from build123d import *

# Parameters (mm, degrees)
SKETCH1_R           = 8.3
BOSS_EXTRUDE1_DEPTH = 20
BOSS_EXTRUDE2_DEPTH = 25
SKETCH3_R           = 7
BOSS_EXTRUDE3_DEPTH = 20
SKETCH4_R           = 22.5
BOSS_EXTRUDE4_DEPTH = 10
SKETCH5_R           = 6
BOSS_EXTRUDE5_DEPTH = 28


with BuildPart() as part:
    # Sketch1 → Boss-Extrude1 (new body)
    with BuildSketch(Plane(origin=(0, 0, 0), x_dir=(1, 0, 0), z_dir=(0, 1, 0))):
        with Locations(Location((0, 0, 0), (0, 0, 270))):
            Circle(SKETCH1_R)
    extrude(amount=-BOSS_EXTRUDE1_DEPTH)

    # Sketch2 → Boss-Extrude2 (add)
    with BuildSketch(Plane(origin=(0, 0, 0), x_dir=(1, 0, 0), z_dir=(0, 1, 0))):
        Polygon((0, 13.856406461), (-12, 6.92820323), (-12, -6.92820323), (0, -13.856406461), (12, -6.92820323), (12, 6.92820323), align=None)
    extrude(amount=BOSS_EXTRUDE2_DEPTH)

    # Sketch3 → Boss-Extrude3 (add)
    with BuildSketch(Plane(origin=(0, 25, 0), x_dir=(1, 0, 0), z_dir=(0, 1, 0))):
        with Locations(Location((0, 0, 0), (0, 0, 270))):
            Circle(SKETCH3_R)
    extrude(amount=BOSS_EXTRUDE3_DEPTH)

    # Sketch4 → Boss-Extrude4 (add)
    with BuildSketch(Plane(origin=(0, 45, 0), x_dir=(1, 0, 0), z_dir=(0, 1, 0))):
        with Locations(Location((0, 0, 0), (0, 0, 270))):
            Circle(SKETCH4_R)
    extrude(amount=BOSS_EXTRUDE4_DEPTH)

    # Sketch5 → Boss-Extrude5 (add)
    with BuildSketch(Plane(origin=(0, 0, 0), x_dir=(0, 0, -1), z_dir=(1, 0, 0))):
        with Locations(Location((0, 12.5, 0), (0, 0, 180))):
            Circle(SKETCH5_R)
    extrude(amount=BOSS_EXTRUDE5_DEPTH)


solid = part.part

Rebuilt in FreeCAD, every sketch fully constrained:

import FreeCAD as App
import Part
import Sketcher

V = App.Vector
Q = App.Units.Quantity


def add_polygon(sketch, points):
    """Adds a closed chain of lines whose ends are joined by coincident constraints."""
    first, n = sketch.GeometryCount, len(points)
    for a, b in zip(points, points[1:] + points[:1]):
        sketch.addGeometry(Part.LineSegment(App.Vector(*a, 0), App.Vector(*b, 0)), False)
    for i in range(n):
        sketch.addConstraint(Sketcher.Constraint("Coincident", first + i, 2, first + (i + 1) % n, 1))

doc = App.newDocument("Part")
body = doc.addObject("PartDesign::Body", "Body")

# Sketch on XZ plane
sketch1 = body.newObject("Sketcher::SketchObject", "Sketch")
sketch1.AttachmentSupport = (doc.getObject("XZ_Plane"), [""])
sketch1.MapMode = "FlatFace"
sketch1.addGeometry(Part.Circle(V(0, 0, 0), V(0, 0, 1), 8), False)
sketch1.addConstraint(Sketcher.Constraint("Coincident", 0, 3, -1, 1))
sketch1.addConstraint(Sketcher.Constraint("Diameter", 0, Q("16.6 mm")))
pad1 = body.newObject("PartDesign::Pad", "Pad")
pad1.Profile = sketch1
pad1.Length = 20

# Sketch on XZ plane
sketch2 = body.newObject("Sketcher::SketchObject", "Sketch001")
sketch2.AttachmentSupport = (doc.getObject("XZ_Plane"), [""])
sketch2.MapMode = "FlatFace"
add_polygon(sketch2, [(0, -14), (-12, -7), (-12, 7), (0, 14), (12, 7), (12, -7)])  # lines 0-5
sketch2.addConstraint(Sketcher.Constraint("Vertical", 1))
sketch2.addConstraint(Sketcher.Constraint("Vertical", 4))
sketch2.addConstraint(Sketcher.Constraint("Symmetric", 0, 2, 3, 2, -1, 1))
sketch2.addConstraint(Sketcher.Constraint("Symmetric", 2, 2, 5, 2, -1, 1))
sketch2.addConstraint(Sketcher.Constraint("PointOnObject", 2, 2, -2))
sketch2.addConstraint(Sketcher.Constraint("Parallel", 2, 5))
sketch2.addConstraint(Sketcher.Constraint("Horizontal", 1, 2, 3, 2))
sketch2.addConstraint(Sketcher.Constraint("Angle", 0, Q("150 deg")))
sketch2.addConstraint(Sketcher.Constraint("DistanceX", 0, 2, -1, 1, Q("12 mm")))
sketch2.addConstraint(Sketcher.Constraint("DistanceY", 1, 1, 1, 2, Q("13.856406 mm")))
pad2 = body.newObject("PartDesign::Pad", "Pad001")
pad2.Profile = sketch2
pad2.Length = 25
pad2.Reversed = True

# Sketch on XZ plane
sketch3 = body.newObject("Sketcher::SketchObject", "Sketch002")
sketch3.AttachmentSupport = (doc.getObject("XZ_Plane"), [""])
sketch3.MapMode = "FlatFace"
sketch3.AttachmentOffset = App.Placement(V(0, 0, -25), App.Rotation())
sketch3.addGeometry(Part.Circle(V(0, 0, 0), V(0, 0, 1), 7), False)
sketch3.addConstraint(Sketcher.Constraint("Coincident", 0, 3, -1, 1))
sketch3.addConstraint(Sketcher.Constraint("Diameter", 0, Q("14 mm")))
pad3 = body.newObject("PartDesign::Pad", "Pad002")
pad3.Profile = sketch3
pad3.Length = 20
pad3.Reversed = True

# Sketch on XZ plane
sketch4 = body.newObject("Sketcher::SketchObject", "Sketch003")
sketch4.AttachmentSupport = (doc.getObject("XZ_Plane"), [""])
sketch4.MapMode = "FlatFace"
sketch4.AttachmentOffset = App.Placement(V(0, 0, -45), App.Rotation())
sketch4.addGeometry(Part.Circle(V(0, 0, 0), V(0, 0, 1), 22), False)
sketch4.addConstraint(Sketcher.Constraint("Coincident", 0, 3, -1, 1))
sketch4.addConstraint(Sketcher.Constraint("Diameter", 0, Q("45 mm")))
pad4 = body.newObject("PartDesign::Pad", "Pad003")
pad4.Profile = sketch4
pad4.Length = 10
pad4.Reversed = True

# Sketch on YZ plane
sketch5 = body.newObject("Sketcher::SketchObject", "Sketch004")
sketch5.AttachmentSupport = (doc.getObject("YZ_Plane"), [""])
sketch5.MapMode = "FlatFace"
sketch5.addGeometry(Part.Circle(V(12, 0, 0), V(0, 0, 1), 6), False)
sketch5.addConstraint(Sketcher.Constraint("PointOnObject", 0, 3, -1))
sketch5.addConstraint(Sketcher.Constraint("Diameter", 0, Q("12 mm")))
sketch5.addConstraint(Sketcher.Constraint("DistanceX", -1, 1, 0, 3, Q("12.5 mm")))
pad5 = body.newObject("PartDesign::Pad", "Pad004")
pad5.Profile = sketch5
pad5.Length = 28

doc.recompute()
